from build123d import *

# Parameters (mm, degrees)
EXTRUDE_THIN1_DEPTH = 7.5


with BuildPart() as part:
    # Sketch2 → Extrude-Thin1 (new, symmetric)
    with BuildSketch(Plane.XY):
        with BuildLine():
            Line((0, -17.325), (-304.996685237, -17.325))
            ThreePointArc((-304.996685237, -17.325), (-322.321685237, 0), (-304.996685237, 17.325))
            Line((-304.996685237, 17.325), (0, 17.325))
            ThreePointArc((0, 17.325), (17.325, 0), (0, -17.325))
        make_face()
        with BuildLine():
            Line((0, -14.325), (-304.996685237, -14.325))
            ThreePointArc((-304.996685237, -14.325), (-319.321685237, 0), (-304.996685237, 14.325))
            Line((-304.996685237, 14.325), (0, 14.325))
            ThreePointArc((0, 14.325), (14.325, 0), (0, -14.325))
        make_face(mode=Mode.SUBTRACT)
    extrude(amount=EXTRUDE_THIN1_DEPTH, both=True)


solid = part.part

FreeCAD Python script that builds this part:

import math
import FreeCAD as App
import Part
import Sketcher
Q = App.Units.Quantity

doc = App.newDocument("Part")
body = doc.addObject("PartDesign::Body", "Body")

# Sketch on XY plane
sketch1 = body.newObject("Sketcher::SketchObject", "Sketch")
sketch1.AttachmentSupport = (doc.getObject("XY_Plane"), [""])
sketch1.MapMode = "FlatFace"
sketch1.addGeometry([
    Part.LineSegment(App.Vector(-305, -17, 0), App.Vector(0, -17, 0)),  # 0
    Part.ArcOfCircle(Part.Circle(App.Vector(0, 0, 0), App.Vector(0, 0, 1), 17), math.radians(-90), math.radians(90)),  # 1
    Part.LineSegment(App.Vector(0, 17, 0), App.Vector(-305, 17, 0)),  # 2
    Part.ArcOfCircle(Part.Circle(App.Vector(-305, 0, 0), App.Vector(0, 0, 1), 17), math.radians(90), math.radians(270)),  # 3
    Part.LineSegment(App.Vector(0, -14, 0), App.Vector(-305, -14, 0)),  # 4
    Part.ArcOfCircle(Part.Circle(App.Vector(-305, 0, 0), App.Vector(0, 0, 1), 14), math.radians(90), math.radians(270)),  # 5
    Part.LineSegment(App.Vector(-305, 14, 0), App.Vector(0, 14, 0)),  # 6
    Part.ArcOfCircle(Part.Circle(App.Vector(0, 0, 0), App.Vector(0, 0, 1), 14), math.radians(-90), math.radians(90)),  # 7
], False)
sketch1.addConstraint([
    Sketcher.Constraint("Tangent", 0, 2, 1, 1),
    Sketcher.Constraint("Tangent", 1, 2, 2, 1),
    Sketcher.Constraint("Tangent", 2, 2, 3, 1),
    Sketcher.Constraint("Tangent", 3, 2, 0, 1),
    Sketcher.Constraint("Tangent", 4, 2, 5, 2),
    Sketcher.Constraint("Tangent", 5, 1, 6, 1),
    Sketcher.Constraint("Tangent", 6, 2, 7, 2),
    Sketcher.Constraint("Tangent", 7, 1, 4, 1),
    Sketcher.Constraint("Horizontal", 0),
    Sketcher.Constraint("Horizontal", 2),
    Sketcher.Constraint("Horizontal", 4),
    Sketcher.Constraint("Horizontal", 6),
    Sketcher.Constraint("Coincident", 1, 3, -1, 1),
    Sketcher.Constraint("Coincident", 7, 3, -1, 1),
    Sketcher.Constraint("Vertical", 5, 3, 2, 2),
    Sketcher.Constraint("Radius", 1, Q("17.325 mm")),
    Sketcher.Constraint("Radius", 5, Q("14.325 mm")),
    Sketcher.Constraint("DistanceX", 0, 1, 0, 2, Q("304.996685 mm")),
])
pad1 = body.newObject("PartDesign::Pad", "Pad")
pad1.Profile = sketch1
pad1.Length = 15
pad1.Midplane = True

doc.recompute()
